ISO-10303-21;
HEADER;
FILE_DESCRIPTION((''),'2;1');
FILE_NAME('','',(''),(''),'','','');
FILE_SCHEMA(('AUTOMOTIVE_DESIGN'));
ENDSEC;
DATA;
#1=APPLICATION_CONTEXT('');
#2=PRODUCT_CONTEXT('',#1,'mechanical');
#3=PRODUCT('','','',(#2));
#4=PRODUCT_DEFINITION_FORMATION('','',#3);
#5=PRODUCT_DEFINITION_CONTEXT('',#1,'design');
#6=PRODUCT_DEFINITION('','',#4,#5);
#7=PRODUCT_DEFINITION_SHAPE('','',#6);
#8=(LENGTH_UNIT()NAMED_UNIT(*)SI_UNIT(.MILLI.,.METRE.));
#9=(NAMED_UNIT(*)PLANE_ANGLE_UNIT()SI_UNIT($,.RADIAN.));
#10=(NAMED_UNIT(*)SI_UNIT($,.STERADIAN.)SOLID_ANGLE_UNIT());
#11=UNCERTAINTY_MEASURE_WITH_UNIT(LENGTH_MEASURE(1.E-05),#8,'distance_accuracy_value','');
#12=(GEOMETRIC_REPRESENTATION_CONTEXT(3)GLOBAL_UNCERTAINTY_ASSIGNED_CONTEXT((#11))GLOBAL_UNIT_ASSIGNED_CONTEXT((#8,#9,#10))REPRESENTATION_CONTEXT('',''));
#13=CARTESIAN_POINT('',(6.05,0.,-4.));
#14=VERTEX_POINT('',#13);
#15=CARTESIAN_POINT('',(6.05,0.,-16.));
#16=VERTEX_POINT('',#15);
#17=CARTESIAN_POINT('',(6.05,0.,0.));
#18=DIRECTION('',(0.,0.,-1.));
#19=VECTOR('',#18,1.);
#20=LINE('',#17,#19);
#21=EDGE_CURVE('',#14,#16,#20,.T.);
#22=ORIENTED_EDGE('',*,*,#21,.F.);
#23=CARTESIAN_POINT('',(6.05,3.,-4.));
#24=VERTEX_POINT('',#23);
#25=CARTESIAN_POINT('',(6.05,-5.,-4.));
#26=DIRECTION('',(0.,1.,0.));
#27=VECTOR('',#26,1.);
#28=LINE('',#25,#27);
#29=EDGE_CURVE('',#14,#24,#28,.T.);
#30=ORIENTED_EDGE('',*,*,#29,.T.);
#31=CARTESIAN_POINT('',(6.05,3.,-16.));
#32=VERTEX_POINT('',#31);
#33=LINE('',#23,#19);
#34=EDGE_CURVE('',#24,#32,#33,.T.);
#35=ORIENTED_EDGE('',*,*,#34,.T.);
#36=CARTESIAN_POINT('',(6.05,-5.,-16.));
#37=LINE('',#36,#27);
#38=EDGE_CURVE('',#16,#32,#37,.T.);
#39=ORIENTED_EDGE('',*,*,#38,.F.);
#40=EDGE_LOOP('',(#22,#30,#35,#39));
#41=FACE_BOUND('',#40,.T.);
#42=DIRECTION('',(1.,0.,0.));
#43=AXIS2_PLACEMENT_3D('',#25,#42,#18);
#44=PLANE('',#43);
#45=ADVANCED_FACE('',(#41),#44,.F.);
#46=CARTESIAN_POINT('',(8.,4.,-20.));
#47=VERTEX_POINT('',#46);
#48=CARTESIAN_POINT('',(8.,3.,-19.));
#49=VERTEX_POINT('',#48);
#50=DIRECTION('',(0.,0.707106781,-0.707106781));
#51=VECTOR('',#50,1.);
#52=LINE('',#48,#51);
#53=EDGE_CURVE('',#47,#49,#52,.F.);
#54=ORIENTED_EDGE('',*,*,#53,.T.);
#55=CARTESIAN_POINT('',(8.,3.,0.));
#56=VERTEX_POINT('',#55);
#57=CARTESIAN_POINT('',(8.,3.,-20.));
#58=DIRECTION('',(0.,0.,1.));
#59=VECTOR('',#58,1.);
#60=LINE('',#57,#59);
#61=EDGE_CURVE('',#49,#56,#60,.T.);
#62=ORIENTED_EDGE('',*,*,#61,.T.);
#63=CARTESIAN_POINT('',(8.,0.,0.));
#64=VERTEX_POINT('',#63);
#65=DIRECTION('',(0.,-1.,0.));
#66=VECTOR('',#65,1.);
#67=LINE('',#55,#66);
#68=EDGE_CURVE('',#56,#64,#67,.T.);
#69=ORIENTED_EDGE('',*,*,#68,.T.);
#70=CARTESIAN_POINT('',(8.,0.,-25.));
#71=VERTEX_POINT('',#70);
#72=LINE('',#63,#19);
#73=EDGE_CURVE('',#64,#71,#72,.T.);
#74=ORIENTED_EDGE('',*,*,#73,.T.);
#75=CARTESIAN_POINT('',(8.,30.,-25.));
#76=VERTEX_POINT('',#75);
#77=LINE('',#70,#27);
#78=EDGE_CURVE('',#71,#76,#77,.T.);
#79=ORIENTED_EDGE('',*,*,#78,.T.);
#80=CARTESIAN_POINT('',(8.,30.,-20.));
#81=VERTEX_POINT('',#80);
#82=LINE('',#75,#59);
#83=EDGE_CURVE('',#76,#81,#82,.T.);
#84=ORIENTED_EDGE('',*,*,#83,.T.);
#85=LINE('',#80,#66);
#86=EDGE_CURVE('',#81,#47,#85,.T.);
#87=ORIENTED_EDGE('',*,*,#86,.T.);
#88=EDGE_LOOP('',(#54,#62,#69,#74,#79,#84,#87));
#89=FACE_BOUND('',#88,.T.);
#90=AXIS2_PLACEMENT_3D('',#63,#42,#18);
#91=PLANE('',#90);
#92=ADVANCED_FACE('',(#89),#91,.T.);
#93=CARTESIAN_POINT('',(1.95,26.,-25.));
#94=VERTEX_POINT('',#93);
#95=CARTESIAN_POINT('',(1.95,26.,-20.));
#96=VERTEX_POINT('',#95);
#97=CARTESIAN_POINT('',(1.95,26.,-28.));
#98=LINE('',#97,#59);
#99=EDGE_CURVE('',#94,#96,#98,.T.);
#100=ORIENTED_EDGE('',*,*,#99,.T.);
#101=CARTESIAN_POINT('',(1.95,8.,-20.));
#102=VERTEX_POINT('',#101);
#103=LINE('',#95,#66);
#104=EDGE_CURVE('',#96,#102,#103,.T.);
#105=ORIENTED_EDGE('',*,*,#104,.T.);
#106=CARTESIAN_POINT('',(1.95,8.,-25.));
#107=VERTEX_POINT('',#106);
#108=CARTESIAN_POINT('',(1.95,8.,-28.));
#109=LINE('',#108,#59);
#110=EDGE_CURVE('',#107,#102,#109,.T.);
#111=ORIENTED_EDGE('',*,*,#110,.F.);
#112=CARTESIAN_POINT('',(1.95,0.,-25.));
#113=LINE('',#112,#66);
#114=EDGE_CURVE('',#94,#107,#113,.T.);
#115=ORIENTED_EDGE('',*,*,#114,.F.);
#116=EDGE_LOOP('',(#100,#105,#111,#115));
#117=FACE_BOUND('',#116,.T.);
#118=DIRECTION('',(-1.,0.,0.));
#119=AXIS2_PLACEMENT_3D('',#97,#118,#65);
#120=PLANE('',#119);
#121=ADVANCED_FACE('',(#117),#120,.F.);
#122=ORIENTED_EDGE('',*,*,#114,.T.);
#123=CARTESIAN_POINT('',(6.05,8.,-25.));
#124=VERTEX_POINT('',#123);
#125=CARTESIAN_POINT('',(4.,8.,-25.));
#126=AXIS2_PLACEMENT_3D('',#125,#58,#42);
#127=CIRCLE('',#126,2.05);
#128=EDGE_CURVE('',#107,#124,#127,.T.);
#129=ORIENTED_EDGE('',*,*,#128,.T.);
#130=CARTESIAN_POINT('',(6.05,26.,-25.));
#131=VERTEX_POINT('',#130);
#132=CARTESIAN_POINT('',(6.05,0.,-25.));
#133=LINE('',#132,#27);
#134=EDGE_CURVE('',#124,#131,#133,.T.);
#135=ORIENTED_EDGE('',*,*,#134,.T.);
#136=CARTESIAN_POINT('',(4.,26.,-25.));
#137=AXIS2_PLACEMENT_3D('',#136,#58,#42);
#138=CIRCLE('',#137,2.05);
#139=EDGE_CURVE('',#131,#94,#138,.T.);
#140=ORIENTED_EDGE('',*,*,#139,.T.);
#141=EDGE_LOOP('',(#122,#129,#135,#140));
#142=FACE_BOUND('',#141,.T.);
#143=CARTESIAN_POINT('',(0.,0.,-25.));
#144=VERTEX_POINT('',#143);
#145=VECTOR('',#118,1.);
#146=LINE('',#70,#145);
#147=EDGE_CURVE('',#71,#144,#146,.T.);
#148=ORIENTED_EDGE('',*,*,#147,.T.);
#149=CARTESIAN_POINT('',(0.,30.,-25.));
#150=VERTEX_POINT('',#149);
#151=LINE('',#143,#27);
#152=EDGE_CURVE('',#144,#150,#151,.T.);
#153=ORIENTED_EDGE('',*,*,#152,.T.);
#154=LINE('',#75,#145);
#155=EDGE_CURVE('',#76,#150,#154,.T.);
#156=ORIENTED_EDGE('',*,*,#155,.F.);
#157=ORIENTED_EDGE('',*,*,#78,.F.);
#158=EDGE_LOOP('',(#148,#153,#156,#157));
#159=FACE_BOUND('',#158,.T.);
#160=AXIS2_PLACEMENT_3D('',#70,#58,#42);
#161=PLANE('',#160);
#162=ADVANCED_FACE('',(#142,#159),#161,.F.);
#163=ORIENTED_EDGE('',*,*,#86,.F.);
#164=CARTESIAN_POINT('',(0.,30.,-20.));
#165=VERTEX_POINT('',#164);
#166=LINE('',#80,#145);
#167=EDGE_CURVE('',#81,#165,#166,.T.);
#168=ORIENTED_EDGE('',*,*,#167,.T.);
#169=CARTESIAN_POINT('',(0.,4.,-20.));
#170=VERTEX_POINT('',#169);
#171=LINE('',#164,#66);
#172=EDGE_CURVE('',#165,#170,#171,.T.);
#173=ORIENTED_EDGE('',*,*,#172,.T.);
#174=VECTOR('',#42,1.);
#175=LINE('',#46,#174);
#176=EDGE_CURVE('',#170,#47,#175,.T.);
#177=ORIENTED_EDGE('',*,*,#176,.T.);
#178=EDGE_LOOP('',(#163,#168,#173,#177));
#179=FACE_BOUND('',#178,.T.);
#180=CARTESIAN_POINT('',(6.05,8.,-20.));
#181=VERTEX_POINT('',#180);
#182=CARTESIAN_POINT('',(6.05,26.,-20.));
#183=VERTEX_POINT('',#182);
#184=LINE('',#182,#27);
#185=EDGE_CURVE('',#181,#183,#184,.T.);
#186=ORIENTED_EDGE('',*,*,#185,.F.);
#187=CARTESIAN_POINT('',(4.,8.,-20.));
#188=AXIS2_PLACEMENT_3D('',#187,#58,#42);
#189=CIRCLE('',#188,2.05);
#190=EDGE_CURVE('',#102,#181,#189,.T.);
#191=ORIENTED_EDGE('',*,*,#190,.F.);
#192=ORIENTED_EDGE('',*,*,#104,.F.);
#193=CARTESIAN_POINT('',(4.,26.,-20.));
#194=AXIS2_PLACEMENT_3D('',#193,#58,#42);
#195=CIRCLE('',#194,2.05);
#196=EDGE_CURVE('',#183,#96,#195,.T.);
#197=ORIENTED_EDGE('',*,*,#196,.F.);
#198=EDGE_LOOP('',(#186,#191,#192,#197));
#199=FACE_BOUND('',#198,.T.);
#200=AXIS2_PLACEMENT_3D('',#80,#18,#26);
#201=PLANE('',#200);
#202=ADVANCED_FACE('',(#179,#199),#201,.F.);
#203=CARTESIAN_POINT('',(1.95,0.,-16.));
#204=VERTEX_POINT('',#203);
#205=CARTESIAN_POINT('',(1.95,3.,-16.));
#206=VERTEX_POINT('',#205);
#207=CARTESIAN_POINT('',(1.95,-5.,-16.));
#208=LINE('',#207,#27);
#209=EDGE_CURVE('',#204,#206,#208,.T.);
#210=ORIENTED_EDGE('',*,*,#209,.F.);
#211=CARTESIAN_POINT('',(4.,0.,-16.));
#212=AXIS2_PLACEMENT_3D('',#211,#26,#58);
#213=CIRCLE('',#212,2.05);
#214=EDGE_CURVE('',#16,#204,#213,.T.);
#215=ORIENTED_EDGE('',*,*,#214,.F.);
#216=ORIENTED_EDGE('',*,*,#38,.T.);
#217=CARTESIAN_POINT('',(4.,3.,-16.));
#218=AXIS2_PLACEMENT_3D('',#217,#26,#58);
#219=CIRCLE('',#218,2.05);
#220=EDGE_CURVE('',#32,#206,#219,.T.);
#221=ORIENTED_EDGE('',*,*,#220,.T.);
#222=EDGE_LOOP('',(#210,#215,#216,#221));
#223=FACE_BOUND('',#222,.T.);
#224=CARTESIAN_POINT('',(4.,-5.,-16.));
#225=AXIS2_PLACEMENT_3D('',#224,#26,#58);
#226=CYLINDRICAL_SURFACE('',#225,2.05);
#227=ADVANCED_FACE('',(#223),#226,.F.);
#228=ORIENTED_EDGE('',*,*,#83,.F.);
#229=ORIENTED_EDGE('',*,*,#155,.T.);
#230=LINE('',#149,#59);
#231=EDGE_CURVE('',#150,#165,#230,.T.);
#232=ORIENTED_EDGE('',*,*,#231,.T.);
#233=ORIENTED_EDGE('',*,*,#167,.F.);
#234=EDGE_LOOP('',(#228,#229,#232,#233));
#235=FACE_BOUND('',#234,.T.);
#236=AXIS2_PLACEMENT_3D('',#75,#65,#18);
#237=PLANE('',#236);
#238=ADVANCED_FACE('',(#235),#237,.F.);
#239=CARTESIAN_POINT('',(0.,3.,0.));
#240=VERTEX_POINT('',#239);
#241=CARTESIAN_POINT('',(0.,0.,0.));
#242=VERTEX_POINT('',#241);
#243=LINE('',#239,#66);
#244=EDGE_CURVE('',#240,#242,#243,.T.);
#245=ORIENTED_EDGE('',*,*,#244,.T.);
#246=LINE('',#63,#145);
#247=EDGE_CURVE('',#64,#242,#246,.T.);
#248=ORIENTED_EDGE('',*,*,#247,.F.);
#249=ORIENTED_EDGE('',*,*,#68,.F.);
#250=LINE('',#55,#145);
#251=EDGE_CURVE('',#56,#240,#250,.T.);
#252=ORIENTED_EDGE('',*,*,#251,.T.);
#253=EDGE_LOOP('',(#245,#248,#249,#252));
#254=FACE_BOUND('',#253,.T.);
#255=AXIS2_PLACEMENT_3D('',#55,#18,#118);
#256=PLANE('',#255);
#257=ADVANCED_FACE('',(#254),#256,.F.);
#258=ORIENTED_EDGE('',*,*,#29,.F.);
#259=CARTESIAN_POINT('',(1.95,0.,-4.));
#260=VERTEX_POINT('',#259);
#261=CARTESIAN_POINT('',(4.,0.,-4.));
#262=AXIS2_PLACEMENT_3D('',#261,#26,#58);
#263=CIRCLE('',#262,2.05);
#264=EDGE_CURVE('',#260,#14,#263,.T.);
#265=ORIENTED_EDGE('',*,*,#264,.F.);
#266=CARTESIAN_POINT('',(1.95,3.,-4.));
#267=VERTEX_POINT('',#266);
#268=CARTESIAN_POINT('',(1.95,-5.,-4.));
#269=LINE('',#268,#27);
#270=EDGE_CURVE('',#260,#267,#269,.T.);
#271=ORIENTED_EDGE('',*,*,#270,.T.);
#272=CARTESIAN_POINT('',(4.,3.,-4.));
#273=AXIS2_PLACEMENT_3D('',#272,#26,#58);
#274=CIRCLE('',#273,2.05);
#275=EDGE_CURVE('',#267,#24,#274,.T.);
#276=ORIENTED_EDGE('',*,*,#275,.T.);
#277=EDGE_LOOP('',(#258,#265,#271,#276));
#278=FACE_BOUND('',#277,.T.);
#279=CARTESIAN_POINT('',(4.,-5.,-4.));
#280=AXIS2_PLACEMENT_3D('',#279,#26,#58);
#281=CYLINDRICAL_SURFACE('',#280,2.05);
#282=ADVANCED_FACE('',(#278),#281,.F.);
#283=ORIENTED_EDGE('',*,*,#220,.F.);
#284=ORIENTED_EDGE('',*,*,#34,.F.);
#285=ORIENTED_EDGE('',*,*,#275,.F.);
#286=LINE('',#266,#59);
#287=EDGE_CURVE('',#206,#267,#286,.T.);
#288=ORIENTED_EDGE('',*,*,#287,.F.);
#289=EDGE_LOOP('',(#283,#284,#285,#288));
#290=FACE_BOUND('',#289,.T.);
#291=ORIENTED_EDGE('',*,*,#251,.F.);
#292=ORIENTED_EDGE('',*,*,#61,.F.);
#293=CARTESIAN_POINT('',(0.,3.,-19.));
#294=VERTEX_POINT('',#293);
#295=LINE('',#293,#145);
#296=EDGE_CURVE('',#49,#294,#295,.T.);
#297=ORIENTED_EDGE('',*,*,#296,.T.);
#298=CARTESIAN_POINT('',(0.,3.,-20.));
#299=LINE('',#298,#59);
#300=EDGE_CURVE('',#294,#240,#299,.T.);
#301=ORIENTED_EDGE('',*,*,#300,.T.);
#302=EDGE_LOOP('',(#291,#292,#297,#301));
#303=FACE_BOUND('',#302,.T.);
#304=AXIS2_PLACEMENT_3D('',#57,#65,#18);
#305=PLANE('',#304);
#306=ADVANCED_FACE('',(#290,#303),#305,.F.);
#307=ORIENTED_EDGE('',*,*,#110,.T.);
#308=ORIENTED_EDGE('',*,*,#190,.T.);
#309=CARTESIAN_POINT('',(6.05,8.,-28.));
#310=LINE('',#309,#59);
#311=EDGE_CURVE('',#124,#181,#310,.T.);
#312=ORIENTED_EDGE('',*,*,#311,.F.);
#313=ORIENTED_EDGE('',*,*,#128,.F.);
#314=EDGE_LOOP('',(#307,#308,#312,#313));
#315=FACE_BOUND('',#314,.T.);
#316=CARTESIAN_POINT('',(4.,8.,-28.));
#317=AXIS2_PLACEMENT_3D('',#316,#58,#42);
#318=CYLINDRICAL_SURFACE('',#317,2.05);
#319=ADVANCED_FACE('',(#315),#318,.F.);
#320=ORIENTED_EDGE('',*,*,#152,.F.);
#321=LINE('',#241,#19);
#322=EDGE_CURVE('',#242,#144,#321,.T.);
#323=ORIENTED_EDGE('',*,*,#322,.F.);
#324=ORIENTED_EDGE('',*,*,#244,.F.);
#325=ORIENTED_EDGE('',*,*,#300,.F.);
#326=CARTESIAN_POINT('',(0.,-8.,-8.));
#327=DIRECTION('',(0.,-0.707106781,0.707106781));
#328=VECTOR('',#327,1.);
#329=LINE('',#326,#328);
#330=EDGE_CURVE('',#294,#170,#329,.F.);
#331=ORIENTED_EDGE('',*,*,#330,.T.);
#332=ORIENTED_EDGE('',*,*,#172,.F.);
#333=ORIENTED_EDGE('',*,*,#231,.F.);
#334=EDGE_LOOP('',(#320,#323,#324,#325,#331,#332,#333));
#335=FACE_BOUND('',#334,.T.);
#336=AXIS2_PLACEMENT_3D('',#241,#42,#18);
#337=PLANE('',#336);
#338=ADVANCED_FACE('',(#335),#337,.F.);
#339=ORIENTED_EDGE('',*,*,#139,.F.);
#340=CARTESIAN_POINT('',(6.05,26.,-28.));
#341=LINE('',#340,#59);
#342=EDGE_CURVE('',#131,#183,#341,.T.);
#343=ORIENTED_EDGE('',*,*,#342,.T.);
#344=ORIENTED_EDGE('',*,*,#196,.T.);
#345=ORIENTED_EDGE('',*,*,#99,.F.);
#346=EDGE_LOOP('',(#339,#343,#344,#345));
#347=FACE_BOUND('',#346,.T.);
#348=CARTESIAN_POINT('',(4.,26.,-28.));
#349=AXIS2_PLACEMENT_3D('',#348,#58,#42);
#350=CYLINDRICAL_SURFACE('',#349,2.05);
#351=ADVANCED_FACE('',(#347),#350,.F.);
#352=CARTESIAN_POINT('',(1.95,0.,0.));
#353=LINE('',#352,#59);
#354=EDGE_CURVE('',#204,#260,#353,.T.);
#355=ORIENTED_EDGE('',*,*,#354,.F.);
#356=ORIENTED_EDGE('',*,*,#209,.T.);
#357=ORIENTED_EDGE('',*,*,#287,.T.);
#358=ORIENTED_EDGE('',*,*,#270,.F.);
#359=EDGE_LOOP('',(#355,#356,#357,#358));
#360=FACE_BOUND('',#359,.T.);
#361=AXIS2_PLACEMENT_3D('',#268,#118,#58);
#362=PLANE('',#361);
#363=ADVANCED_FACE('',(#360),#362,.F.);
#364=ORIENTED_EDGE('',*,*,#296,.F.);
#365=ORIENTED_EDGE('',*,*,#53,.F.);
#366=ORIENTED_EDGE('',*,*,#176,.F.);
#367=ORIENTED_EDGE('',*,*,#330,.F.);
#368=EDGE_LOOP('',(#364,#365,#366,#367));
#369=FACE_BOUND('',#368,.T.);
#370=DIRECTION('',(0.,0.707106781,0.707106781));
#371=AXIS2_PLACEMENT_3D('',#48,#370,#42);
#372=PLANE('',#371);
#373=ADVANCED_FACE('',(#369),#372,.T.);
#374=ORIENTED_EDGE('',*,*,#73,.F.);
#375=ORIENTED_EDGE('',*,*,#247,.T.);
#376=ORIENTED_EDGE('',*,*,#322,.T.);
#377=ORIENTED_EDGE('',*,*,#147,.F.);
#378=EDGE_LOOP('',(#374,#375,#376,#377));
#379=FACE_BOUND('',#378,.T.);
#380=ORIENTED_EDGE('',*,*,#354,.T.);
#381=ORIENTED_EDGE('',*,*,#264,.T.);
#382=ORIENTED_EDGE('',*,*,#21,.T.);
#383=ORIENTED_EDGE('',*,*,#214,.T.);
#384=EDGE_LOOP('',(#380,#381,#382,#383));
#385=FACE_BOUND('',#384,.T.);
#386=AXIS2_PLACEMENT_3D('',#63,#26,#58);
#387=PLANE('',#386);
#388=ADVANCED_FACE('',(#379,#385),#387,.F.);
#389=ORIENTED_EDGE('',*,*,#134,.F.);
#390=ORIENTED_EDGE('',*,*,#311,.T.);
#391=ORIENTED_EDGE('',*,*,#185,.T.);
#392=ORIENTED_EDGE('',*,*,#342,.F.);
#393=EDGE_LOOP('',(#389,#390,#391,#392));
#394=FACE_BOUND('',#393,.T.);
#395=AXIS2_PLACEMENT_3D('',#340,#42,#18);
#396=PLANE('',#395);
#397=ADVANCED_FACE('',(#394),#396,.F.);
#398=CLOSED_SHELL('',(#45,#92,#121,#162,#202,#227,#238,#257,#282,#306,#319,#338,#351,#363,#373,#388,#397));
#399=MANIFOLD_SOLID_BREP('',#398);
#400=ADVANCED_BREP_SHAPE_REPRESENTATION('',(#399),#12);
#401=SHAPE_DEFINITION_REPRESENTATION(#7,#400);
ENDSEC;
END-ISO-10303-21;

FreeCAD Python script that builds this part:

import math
import FreeCAD as App
import Part
import Sketcher
from FreeCAD import Vector


def edges_at(feature, points):
    """Names of the edges that pass closest to the given points."""
    edges = feature.Shape.Edges
    near = lambda p: min(range(len(edges)), key=lambda i: edges[i].distToShape(Part.Vertex(*p))[0])
    return sorted({f"Edge{near(p) + 1}" for p in points})


def add_polygon(sketch, points):
    """Adds a closed chain of lines whose ends are joined by coincident constraints."""
    first, n = sketch.GeometryCount, len(points)
    for a, b in zip(points, points[1:] + points[:1]):
        sketch.addGeometry(Part.LineSegment(App.Vector(*a, 0), App.Vector(*b, 0)), False)
    for i in range(n):
        sketch.addConstraint(Sketcher.Constraint("Coincident", first + i, 2, first + (i + 1) % n, 1))

doc = App.newDocument("Part")
params = doc.addObject("Spreadsheet::Sheet", "Params")
for row, (alias, value) in enumerate([
    ("sketch1_width", "30 mm"),
    ("sketch1_width2", "27 mm"),
    ("sketch1_height", "25 mm"),
    ("sketch1_height2", "5 mm"),
    ("pad1_length", "8 mm"),
    ("sketch2_height", "12 mm"),
    ("sketch2_radius", "2.05 mm"),
    ("pocket1_length", "8 mm"),
    ("sketch3_height", "18 mm"),
    ("sketch3_radius", "2.05 mm"),
    ("pocket2_length", "8 mm"),
    ("chamfer_size", "1 mm"),
], start=1):
    params.set(f"A{row}", alias)
    params.set(f"B{row}", "=" + value)
    params.setAlias(f"B{row}", alias)

body = doc.addObject("PartDesign::Body", "Body")

sketch1 = doc.addObject("Sketcher::SketchObject", "Sketch")
body.addObject(sketch1)
sketch1.AttachmentSupport = (doc.YZ_Plane, [""])
sketch1.MapMode = "FlatFace"
add_polygon(sketch1, [(0, 0), (0, -25), (30, -25), (30, -20), (3, -20), (3, 0)])
sketch1.addConstraint(Sketcher.Constraint("Vertical", 0))
sketch1.addConstraint(Sketcher.Constraint("Horizontal", 1))
sketch1.addConstraint(Sketcher.Constraint("Vertical", 2))
sketch1.addConstraint(Sketcher.Constraint("Horizontal", 3))
sketch1.addConstraint(Sketcher.Constraint("Vertical", 4))
sketch1.addConstraint(Sketcher.Constraint("Horizontal", 5))
sketch1.addConstraint(Sketcher.Constraint("Coincident", 5, 2, -1, 1))
sketch1.addConstraint(Sketcher.Constraint("DistanceX", 1, 1, 1, 2, 30.0))
sketch1.addConstraint(Sketcher.Constraint("DistanceX", 3, 2, 3, 1, 27.0))
sketch1.addConstraint(Sketcher.Constraint("DistanceY", 0, 2, 0, 1, 25.0))
sketch1.addConstraint(Sketcher.Constraint("DistanceY", 2, 1, 2, 2, 5.0))
sketch1.setExpression("Constraints[13]", "Params.sketch1_width")
sketch1.setExpression("Constraints[14]", "Params.sketch1_width2")
sketch1.setExpression("Constraints[15]", "Params.sketch1_height")
sketch1.setExpression("Constraints[16]", "Params.sketch1_height2")
pad1 = doc.addObject("PartDesign::Pad", "Pad")
body.addObject(pad1)
pad1.Profile = sketch1
pad1.setExpression("Length", "Params.pad1_length")

sketch2 = doc.addObject("Sketcher::SketchObject", "Sketch001")
body.addObject(sketch2)
sketch2.AttachmentSupport = (doc.XZ_Plane, [""])
sketch2.MapMode = "FlatFace"
sketch2.AttachmentOffset = App.Placement(Vector(0, 0, -3), App.Rotation())
sketch2.addGeometry(Part.LineSegment(Vector(1.9, -16, 0), Vector(1.9, -4, 0)), False)
sketch2.addGeometry(Part.ArcOfCircle(Part.Circle(Vector(4, -4, 0), Vector(0, 0, 1), 2), math.radians(0), math.radians(180)), False)
sketch2.addGeometry(Part.LineSegment(Vector(6, -4, 0), Vector(6, -16, 0)), False)
sketch2.addGeometry(Part.ArcOfCircle(Part.Circle(Vector(4, -16, 0), Vector(0, 0, 1), 2), math.radians(180), math.radians(360)), False)
sketch2.addConstraint(Sketcher.Constraint("Tangent", 0, 2, 1, 2))
sketch2.addConstraint(Sketcher.Constraint("Tangent", 1, 1, 2, 1))
sketch2.addConstraint(Sketcher.Constraint("Tangent", 2, 2, 3, 2))
sketch2.addConstraint(Sketcher.Constraint("Tangent", 3, 1, 0, 1))
sketch2.addConstraint(Sketcher.Constraint("Vertical", 0))
sketch2.addConstraint(Sketcher.Constraint("Vertical", 2))
sketch2.addConstraint(Sketcher.Constraint("DistanceY", 0, 1, 0, 2, 12.0))
sketch2.addConstraint(Sketcher.Constraint("Radius", 1, 2.05))
sketch2.addConstraint(Sketcher.Constraint("DistanceX", -1, 1, 1, 3, 4.0))
sketch2.addConstraint(Sketcher.Constraint("DistanceY", 1, 3, -1, 1, 4.0))
sketch2.setExpression("Constraints[6]", "Params.sketch2_height")
sketch2.setExpression("Constraints[7]", "Params.sketch2_radius")
pocket1 = doc.addObject("PartDesign::Pocket", "Pocket")
body.addObject(pocket1)
pocket1.Profile = sketch2
pocket1.setExpression("Length", "Params.pocket1_length")
pocket1.Reversed = True

sketch3 = doc.addObject("Sketcher::SketchObject", "Sketch002")
body.addObject(sketch3)
sketch3.AttachmentSupport = (doc.XY_Plane, [""])
sketch3.MapMode = "FlatFace"
sketch3.AttachmentOffset = App.Placement(Vector(0, 0, -20), App.Rotation())
sketch3.addGeometry(Part.LineSegment(Vector(6, 8, 0), Vector(6, 26, 0)), False)
sketch3.addGeometry(Part.ArcOfCircle(Part.Circle(Vector(4, 26, 0), Vector(0, 0, 1), 2), math.radians(0), math.radians(180)), False)
sketch3.addGeometry(Part.LineSegment(Vector(1.9, 26, 0), Vector(1.9, 8, 0)), False)
sketch3.addGeometry(Part.ArcOfCircle(Part.Circle(Vector(4, 8, 0), Vector(0, 0, 1), 2), math.radians(180), math.radians(360)), False)
sketch3.addConstraint(Sketcher.Constraint("Tangent", 0, 2, 1, 1))
sketch3.addConstraint(Sketcher.Constraint("Tangent", 1, 2, 2, 1))
sketch3.addConstraint(Sketcher.Constraint("Tangent", 2, 2, 3, 1))
sketch3.addConstraint(Sketcher.Constraint("Tangent", 3, 2, 0, 1))
sketch3.addConstraint(Sketcher.Constraint("Vertical", 0))
sketch3.addConstraint(Sketcher.Constraint("Vertical", 2))
sketch3.addConstraint(Sketcher.Constraint("DistanceY", 0, 1, 0, 2, 18.0))
sketch3.addConstraint(Sketcher.Constraint("Radius", 1, 2.05))
sketch3.addConstraint(Sketcher.Constraint("DistanceX", -1, 1, 1, 3, 4.0))
sketch3.addConstraint(Sketcher.Constraint("DistanceY", -1, 1, 1, 3, 26.0))
sketch3.setExpression("Constraints[6]", "Params.sketch3_height")
sketch3.setExpression("Constraints[7]", "Params.sketch3_radius")
pocket2 = doc.addObject("PartDesign::Pocket", "Pocket001")
body.addObject(pocket2)
pocket2.Profile = sketch3
pocket2.setExpression("Length", "Params.pocket2_length")
doc.recompute()

chamfer = doc.addObject("PartDesign::Chamfer", "Chamfer")
body.addObject(chamfer)
chamfer.Base = (pocket2, edges_at(pocket2, [(4, 3, -20)]))
chamfer.setExpression("Size", "Params.chamfer_size")

doc.recompute()
